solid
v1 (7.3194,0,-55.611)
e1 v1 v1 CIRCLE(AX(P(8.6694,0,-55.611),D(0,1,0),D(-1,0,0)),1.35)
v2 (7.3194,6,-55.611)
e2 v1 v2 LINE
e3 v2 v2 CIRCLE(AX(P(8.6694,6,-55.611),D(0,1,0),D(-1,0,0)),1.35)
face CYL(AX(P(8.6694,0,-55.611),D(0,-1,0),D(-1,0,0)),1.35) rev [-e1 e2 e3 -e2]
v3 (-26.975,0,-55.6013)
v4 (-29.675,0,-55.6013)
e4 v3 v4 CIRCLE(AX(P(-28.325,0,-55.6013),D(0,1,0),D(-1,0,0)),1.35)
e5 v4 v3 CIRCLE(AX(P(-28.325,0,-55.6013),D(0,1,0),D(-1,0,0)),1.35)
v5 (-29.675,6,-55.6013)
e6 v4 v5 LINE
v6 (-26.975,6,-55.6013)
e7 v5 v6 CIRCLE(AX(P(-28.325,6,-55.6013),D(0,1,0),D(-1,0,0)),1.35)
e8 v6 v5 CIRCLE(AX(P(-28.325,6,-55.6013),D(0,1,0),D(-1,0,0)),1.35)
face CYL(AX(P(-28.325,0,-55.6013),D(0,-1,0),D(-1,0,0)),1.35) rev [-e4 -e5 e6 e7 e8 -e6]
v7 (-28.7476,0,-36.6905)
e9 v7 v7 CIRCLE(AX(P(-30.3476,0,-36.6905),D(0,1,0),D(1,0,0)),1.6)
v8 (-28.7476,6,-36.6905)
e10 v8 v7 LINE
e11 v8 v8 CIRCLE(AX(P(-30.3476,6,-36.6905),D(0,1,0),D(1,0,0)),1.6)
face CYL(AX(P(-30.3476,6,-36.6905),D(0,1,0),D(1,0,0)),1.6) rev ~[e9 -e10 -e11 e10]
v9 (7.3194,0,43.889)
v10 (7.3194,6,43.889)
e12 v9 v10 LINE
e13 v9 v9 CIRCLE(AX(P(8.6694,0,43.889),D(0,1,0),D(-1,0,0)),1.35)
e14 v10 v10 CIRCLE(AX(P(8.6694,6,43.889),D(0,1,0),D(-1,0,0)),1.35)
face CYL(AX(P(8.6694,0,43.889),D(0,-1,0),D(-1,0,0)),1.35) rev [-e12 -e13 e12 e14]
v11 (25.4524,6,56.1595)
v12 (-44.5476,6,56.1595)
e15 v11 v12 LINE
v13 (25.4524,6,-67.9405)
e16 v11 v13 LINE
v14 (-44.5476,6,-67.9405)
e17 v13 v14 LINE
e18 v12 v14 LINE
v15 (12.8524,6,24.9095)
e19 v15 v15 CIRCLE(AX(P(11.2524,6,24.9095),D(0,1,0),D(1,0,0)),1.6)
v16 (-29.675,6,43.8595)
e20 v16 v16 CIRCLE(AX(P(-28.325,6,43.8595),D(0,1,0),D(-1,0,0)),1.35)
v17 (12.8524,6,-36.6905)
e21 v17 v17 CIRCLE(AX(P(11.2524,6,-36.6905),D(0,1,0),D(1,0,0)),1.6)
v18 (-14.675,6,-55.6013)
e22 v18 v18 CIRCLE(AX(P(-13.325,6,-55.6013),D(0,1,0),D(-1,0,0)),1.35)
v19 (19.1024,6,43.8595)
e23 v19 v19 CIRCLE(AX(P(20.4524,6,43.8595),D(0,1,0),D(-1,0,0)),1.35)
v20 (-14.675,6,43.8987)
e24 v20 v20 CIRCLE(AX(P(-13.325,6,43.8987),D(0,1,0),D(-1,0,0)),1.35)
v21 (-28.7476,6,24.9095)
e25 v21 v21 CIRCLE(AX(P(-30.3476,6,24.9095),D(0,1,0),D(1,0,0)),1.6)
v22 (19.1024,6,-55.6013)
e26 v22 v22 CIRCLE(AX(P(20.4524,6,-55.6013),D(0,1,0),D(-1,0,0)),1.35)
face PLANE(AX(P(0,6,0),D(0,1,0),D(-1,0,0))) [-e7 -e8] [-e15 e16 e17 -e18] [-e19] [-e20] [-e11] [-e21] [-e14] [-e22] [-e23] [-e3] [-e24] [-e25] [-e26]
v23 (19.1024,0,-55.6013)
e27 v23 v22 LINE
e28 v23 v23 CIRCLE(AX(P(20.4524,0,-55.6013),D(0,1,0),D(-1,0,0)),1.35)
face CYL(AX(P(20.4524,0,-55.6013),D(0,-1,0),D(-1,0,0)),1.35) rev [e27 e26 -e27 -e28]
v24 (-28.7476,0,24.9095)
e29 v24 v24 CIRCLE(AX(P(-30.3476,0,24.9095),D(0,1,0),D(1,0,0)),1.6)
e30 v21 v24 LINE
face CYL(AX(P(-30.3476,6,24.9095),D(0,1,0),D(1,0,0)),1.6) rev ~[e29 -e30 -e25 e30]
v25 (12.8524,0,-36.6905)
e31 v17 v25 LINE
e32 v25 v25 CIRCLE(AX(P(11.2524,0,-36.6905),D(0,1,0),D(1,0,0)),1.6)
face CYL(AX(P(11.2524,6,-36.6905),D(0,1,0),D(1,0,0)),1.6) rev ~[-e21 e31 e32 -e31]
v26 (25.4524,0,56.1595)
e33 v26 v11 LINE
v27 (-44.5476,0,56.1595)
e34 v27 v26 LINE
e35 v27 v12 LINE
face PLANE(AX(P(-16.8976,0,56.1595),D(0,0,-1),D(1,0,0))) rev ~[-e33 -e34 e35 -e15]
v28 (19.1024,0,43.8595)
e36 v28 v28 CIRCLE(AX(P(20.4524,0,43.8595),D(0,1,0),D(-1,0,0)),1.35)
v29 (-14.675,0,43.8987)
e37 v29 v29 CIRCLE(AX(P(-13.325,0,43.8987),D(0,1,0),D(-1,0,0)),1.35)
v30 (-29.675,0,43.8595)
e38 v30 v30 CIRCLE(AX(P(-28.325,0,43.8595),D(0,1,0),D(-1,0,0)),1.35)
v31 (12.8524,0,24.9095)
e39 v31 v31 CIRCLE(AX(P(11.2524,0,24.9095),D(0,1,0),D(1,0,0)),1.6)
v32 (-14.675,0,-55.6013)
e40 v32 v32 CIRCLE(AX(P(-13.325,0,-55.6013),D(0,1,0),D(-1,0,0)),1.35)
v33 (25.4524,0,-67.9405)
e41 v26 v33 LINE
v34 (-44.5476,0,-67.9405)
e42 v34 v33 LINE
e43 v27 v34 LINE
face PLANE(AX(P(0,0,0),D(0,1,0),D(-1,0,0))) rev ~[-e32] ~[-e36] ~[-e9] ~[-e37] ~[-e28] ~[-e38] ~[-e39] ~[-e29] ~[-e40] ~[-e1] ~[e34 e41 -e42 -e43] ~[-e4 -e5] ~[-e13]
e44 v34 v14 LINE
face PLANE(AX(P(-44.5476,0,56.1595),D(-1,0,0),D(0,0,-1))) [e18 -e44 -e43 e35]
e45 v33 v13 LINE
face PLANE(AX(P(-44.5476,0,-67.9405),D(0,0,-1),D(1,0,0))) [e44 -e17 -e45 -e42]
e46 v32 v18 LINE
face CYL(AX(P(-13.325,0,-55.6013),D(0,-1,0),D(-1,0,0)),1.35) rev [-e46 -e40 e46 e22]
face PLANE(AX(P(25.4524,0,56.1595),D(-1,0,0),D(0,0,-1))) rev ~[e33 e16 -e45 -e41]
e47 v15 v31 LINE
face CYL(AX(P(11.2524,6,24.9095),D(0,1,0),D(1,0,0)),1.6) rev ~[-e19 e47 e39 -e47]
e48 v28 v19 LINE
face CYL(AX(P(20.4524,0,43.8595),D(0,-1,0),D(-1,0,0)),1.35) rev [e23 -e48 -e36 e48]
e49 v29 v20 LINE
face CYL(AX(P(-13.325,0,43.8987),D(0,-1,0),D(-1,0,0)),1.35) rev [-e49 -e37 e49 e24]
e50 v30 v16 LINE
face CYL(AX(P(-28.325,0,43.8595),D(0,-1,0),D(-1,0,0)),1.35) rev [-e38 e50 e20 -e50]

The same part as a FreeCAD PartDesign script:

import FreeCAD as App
import Part
import Sketcher

doc = App.newDocument("Part")
body = doc.addObject("PartDesign::Body", "Body")

# Sketch on XZ plane
sketch1 = doc.addObject("Sketcher::SketchObject", "Sketch")
body.addObject(sketch1)
sketch1.AttachmentSupport = (doc.XZ_Plane, [""])
sketch1.MapMode = "FlatFace"
sketch1.addGeometry(Part.LineSegment(App.Vector(25.4524, 56.1595, 0), App.Vector(25.4524, -67.9405, 0)), False)
sketch1.addGeometry(Part.LineSegment(App.Vector(25.4524, -67.9405, 0), App.Vector(-44.5476, -67.9405, 0)), False)
sketch1.addGeometry(Part.LineSegment(App.Vector(-44.5476, -67.9405, 0), App.Vector(-44.5476, 56.1595, 0)), False)
sketch1.addGeometry(Part.LineSegment(App.Vector(-44.5476, 56.1595, 0), App.Vector(25.4524, 56.1595, 0)), False)
sketch1.addGeometry(Part.Circle(App.Vector(8.6694, 43.889, 0), App.Vector(0, 0, 1), 1.35), False)
sketch1.addGeometry(Part.Circle(App.Vector(-13.325, 43.8987, 0), App.Vector(0, 0, 1), 1.35), False)
sketch1.addGeometry(Part.Circle(App.Vector(-28.325, 43.8595, 0), App.Vector(0, 0, 1), 1.35), False)
sketch1.addGeometry(Part.Circle(App.Vector(-28.325, -55.6013, 0), App.Vector(0, 0, 1), 1.35), False)
sketch1.addGeometry(Part.Circle(App.Vector(20.4524, 43.8595, 0), App.Vector(0, 0, 1), 1.35), False)
sketch1.addGeometry(Part.Circle(App.Vector(20.4524, -55.6013, 0), App.Vector(0, 0, 1), 1.35), False)
sketch1.addGeometry(Part.Circle(App.Vector(8.6694, -55.611, 0), App.Vector(0, 0, 1), 1.35), False)
sketch1.addGeometry(Part.Circle(App.Vector(-13.325, -55.6013, 0), App.Vector(0, 0, 1), 1.35), False)
sketch1.addConstraint(Sketcher.Constraint("Coincident", 0, 2, 1, 1))
sketch1.addConstraint(Sketcher.Constraint("Coincident", 1, 2, 2, 1))
sketch1.addConstraint(Sketcher.Constraint("Coincident", 2, 2, 3, 1))
sketch1.addConstraint(Sketcher.Constraint("Coincident", 3, 2, 0, 1))
sketch1.addConstraint(Sketcher.Constraint("Vertical", 0))
sketch1.addConstraint(Sketcher.Constraint("Horizontal", 1))
sketch1.addConstraint(Sketcher.Constraint("Vertical", 2))
sketch1.addConstraint(Sketcher.Constraint("Horizontal", 3))
sketch1.addConstraint(Sketcher.Constraint("Equal", 4, 5))
sketch1.addConstraint(Sketcher.Constraint("Equal", 5, 6))
sketch1.addConstraint(Sketcher.Constraint("Equal", 6, 7))
sketch1.addConstraint(Sketcher.Constraint("Equal", 7, 8))
sketch1.addConstraint(Sketcher.Constraint("Equal", 8, 9))
sketch1.addConstraint(Sketcher.Constraint("Equal", 9, 10))
sketch1.addConstraint(Sketcher.Constraint("Equal", 10, 11))
sketch1.addConstraint(Sketcher.Constraint("Horizontal", 6, 3, 8, 3))
sketch1.addConstraint(Sketcher.Constraint("Horizontal", 7, 3, 9, 3))
sketch1.addConstraint(Sketcher.Constraint("Horizontal", 9, 3, 11, 3))
sketch1.addConstraint(Sketcher.Constraint("Vertical", 6, 3, 7, 3))
sketch1.addConstraint(Sketcher.Constraint("Vertical", 8, 3, 9, 3))
sketch1.addConstraint(Sketcher.Constraint("Vertical", 4, 3, 10, 3))
sketch1.addConstraint(Sketcher.Constraint("Vertical", 5, 3, 11, 3))
sketch1.addConstraint(Sketcher.Constraint("Diameter", 4, 2.7))
sketch1.addConstraint(Sketcher.Constraint("DistanceX", 6, 3, 5, 3, 15.0))
sketch1.addConstraint(Sketcher.Constraint("DistanceX", 1, 2, 1, 1, 70.0))
sketch1.addConstraint(Sketcher.Constraint("DistanceY", 0, 2, 0, 1, 124.1))
sketch1.addConstraint(Sketcher.Constraint("DistanceX", 9, 3, 0, 2, 5.0))
sketch1.addConstraint(Sketcher.Constraint("DistanceY", 7, 3, 5, 3, 99.5))
sketch1.addConstraint(Sketcher.Constraint("DistanceY", 10, 3, 4, 3, 99.5))
sketch1.addConstraint(Sketcher.Constraint("DistanceY", 0, 2, 8, 3, 111.8))
sketch1.addConstraint(Sketcher.Constraint("DistanceY", -1, 1, 4, 3, 43.889))
sketch1.addConstraint(Sketcher.Constraint("DistanceX", 5, 3, -1, 1, 13.325))
sketch1.addConstraint(Sketcher.Constraint("DistanceX", 4, 3, 8, 3, 11.783))
sketch1.addConstraint(Sketcher.Constraint("DistanceX", -1, 1, 4, 3, 8.6694))
sketch1.addConstraint(Sketcher.Constraint("DistanceY", -1, 1, 5, 3, 43.8987))
sketch1.addConstraint(Sketcher.Constraint("DistanceY", -1, 1, 6, 3, 43.8595))
pad1 = doc.addObject("PartDesign::Pad", "Pad")
body.addObject(pad1)
pad1.Profile = sketch1
pad1.Length = 6
pad1.Reversed = True

# Sketch on XZ plane
sketch2 = doc.addObject("Sketcher::SketchObject", "Sketch001")
body.addObject(sketch2)
sketch2.AttachmentSupport = (doc.XZ_Plane, [""])
sketch2.MapMode = "FlatFace"
sketch2.AttachmentOffset = App.Placement(App.Vector(0, 0, -6), App.Rotation())
sketch2.addGeometry(Part.Circle(App.Vector(11.2524, 24.9095, 0), App.Vector(0, 0, 1), 1.6), False)
sketch2.addGeometry(Part.Circle(App.Vector(-30.3476, 24.9095, 0), App.Vector(0, 0, 1), 1.6), False)
sketch2.addGeometry(Part.Circle(App.Vector(-30.3476, -36.6905, 0), App.Vector(0, 0, 1), 1.6), False)
sketch2.addGeometry(Part.Circle(App.Vector(11.2524, -36.6905, 0), App.Vector(0, 0, 1), 1.6), False)
sketch2.addConstraint(Sketcher.Constraint("Equal", 0, 1))
sketch2.addConstraint(Sketcher.Constraint("Equal", 1, 2))
sketch2.addConstraint(Sketcher.Constraint("Equal", 2, 3))
sketch2.addConstraint(Sketcher.Constraint("Horizontal", 0, 3, 1, 3))
sketch2.addConstraint(Sketcher.Constraint("Horizontal", 2, 3, 3, 3))
sketch2.addConstraint(Sketcher.Constraint("Vertical", 1, 3, 2, 3))
sketch2.addConstraint(Sketcher.Constraint("Vertical", 0, 3, 3, 3))
sketch2.addConstraint(Sketcher.Constraint("Diameter", 0, 3.2))
sketch2.addConstraint(Sketcher.Constraint("DistanceX", 1, 3, 0, 3, 41.6))
sketch2.addConstraint(Sketcher.Constraint("DistanceY", 2, 3, 1, 3, 61.6))
sketch2.addConstraint(Sketcher.Constraint("DistanceX", -1, 1, 0, 3, 11.2524))
sketch2.addConstraint(Sketcher.Constraint("DistanceY", -1, 1, 0, 3, 24.9095))
pocket1 = doc.addObject("PartDesign::Pocket", "Pocket")
body.addObject(pocket1)
pocket1.Profile = sketch2
pocket1.Length = 10
pocket1.Reversed = True

doc.recompute()
